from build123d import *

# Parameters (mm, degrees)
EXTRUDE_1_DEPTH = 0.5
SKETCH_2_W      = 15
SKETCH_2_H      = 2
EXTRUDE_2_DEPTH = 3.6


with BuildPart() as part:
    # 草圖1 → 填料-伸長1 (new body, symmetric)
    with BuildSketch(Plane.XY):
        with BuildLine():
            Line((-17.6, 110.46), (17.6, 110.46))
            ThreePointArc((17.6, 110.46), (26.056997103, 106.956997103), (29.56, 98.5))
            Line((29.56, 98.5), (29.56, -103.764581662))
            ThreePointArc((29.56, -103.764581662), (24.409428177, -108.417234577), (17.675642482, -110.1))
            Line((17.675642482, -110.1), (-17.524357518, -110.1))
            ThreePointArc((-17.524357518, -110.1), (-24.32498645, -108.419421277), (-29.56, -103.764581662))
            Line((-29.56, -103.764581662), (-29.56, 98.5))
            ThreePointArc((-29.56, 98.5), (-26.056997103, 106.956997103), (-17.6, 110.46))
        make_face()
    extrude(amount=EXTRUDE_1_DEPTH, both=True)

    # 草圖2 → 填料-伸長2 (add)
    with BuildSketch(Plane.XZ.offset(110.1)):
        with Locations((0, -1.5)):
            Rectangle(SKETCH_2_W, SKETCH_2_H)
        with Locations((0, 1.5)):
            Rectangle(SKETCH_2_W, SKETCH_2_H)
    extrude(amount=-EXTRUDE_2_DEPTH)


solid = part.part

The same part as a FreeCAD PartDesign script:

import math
import FreeCAD as App
import Part
import Sketcher
from FreeCAD import Vector
Q = App.Units.Quantity

doc = App.newDocument("Part")
body = doc.addObject("PartDesign::Body", "Body")

# Sketch on XY plane
sketch1 = doc.addObject("Sketcher::SketchObject", "Sketch")
body.addObject(sketch1)
sketch1.AttachmentSupport = (doc.XY_Plane, [""])
sketch1.MapMode = "FlatFace"
sketch1.addGeometry(Part.LineSegment(Vector(18, 110, 0), Vector(-18, 110, 0)), False)
sketch1.addGeometry(Part.ArcOfCircle(Part.Circle(Vector(-18, 98, 0), Vector(0, 0, 1), 12), math.radians(90), math.radians(180)), False)
sketch1.addGeometry(Part.LineSegment(Vector(-30, 98, 0), Vector(-30, -104, 0)), False)
sketch1.addGeometry(Part.ArcOfCircle(Part.Circle(Vector(-18, -96, 0), Vector(0, 0, 1), 15), math.radians(-146), math.radians(-90)), False)
sketch1.addGeometry(Part.LineSegment(Vector(-18, -110, 0), Vector(18, -110, 0)), False)
sketch1.addGeometry(Part.ArcOfCircle(Part.Circle(Vector(18, -96, 0), Vector(0, 0, 1), 14), math.radians(-90), math.radians(-34)), False)
sketch1.addGeometry(Part.LineSegment(Vector(30, -104, 0), Vector(30, 98, 0)), False)
sketch1.addGeometry(Part.ArcOfCircle(Part.Circle(Vector(18, 98, 0), Vector(0, 0, 1), 12), math.radians(0), math.radians(90)), False)
sketch1.addConstraint(Sketcher.Constraint("Tangent", 0, 2, 1, 1))
sketch1.addConstraint(Sketcher.Constraint("Tangent", 1, 2, 2, 1))
sketch1.addConstraint(Sketcher.Constraint("Coincident", 2, 2, 3, 1))
sketch1.addConstraint(Sketcher.Constraint("Tangent", 3, 2, 4, 1))
sketch1.addConstraint(Sketcher.Constraint("Tangent", 4, 2, 5, 1))
sketch1.addConstraint(Sketcher.Constraint("Coincident", 5, 2, 6, 1))
sketch1.addConstraint(Sketcher.Constraint("Tangent", 6, 2, 7, 1))
sketch1.addConstraint(Sketcher.Constraint("Tangent", 7, 2, 0, 1))
sketch1.addConstraint(Sketcher.Constraint("Horizontal", 0))
sketch1.addConstraint(Sketcher.Constraint("Vertical", 2))
sketch1.addConstraint(Sketcher.Constraint("Horizontal", 4))
sketch1.addConstraint(Sketcher.Constraint("Vertical", 6))
sketch1.addConstraint(Sketcher.Constraint("Equal", 1, 7))
sketch1.addConstraint(Sketcher.Constraint("Symmetric", 2, 2, 5, 2, -2))
sketch1.addConstraint(Sketcher.Constraint("Equal", 0, 4))
sketch1.addConstraint(Sketcher.Constraint("Radius", 3, Q("14.6 mm")))
sketch1.addConstraint(Sketcher.Constraint("Radius", 1, Q("11.96 mm")))
sketch1.addConstraint(Sketcher.Constraint("DistanceX", 0, 2, 0, 1, Q("35.2 mm")))
sketch1.addConstraint(Sketcher.Constraint("DistanceY", 3, 3, 1, 3, Q("194 mm")))
sketch1.addConstraint(Sketcher.Constraint("DistanceY", -1, 1, 1, 3, Q("98.5 mm")))
sketch1.addConstraint(Sketcher.Constraint("Radius", 5, Q("14.314404 mm")))
pad1 = doc.addObject("PartDesign::Pad", "Pad")
body.addObject(pad1)
pad1.Profile = sketch1
pad1.Length = 1
pad1.Midplane = True

# Sketch on XZ plane
sketch2 = doc.addObject("Sketcher::SketchObject", "Sketch001")
body.addObject(sketch2)
sketch2.AttachmentSupport = (doc.XZ_Plane, [""])
sketch2.MapMode = "FlatFace"
sketch2.AttachmentOffset = App.Placement(Vector(0, 0, 110.1), App.Rotation())
sketch2.addGeometry(Part.LineSegment(Vector(-7.5, -0.5, 0), Vector(-7.5, -2.5, 0)), False)
sketch2.addGeometry(Part.LineSegment(Vector(-7.5, -2.5, 0), Vector(7.5, -2.5, 0)), False)
sketch2.addGeometry(Part.LineSegment(Vector(7.5, -2.5, 0), Vector(7.5, -0.5, 0)), False)
sketch2.addGeometry(Part.LineSegment(Vector(7.5, -0.5, 0), Vector(-7.5, -0.5, 0)), False)
sketch2.addGeometry(Part.LineSegment(Vector(-7.5, 2.5, 0), Vector(-7.5, 0.5, 0)), False)
sketch2.addGeometry(Part.LineSegment(Vector(-7.5, 0.5, 0), Vector(7.5, 0.5, 0)), False)
sketch2.addGeometry(Part.LineSegment(Vector(7.5, 0.5, 0), Vector(7.5, 2.5, 0)), False)
sketch2.addGeometry(Part.LineSegment(Vector(7.5, 2.5, 0), Vector(-7.5, 2.5, 0)), False)
sketch2.addConstraint(Sketcher.Constraint("Coincident", 0, 2, 1, 1))
sketch2.addConstraint(Sketcher.Constraint("Coincident", 1, 2, 2, 1))
sketch2.addConstraint(Sketcher.Constraint("Coincident", 2, 2, 3, 1))
sketch2.addConstraint(Sketcher.Constraint("Coincident", 3, 2, 0, 1))
sketch2.addConstraint(Sketcher.Constraint("Coincident", 4, 2, 5, 1))
sketch2.addConstraint(Sketcher.Constraint("Coincident", 5, 2, 6, 1))
sketch2.addConstraint(Sketcher.Constraint("Coincident", 6, 2, 7, 1))
sketch2.addConstraint(Sketcher.Constraint("Coincident", 7, 2, 4, 1))
sketch2.addConstraint(Sketcher.Constraint("Vertical", 0))
sketch2.addConstraint(Sketcher.Constraint("Horizontal", 1))
sketch2.addConstraint(Sketcher.Constraint("Vertical", 2))
sketch2.addConstraint(Sketcher.Constraint("Horizontal", 3))
sketch2.addConstraint(Sketcher.Constraint("Vertical", 4))
sketch2.addConstraint(Sketcher.Constraint("Horizontal", 5))
sketch2.addConstraint(Sketcher.Constraint("Vertical", 6))
sketch2.addConstraint(Sketcher.Constraint("Horizontal", 7))
sketch2.addConstraint(Sketcher.Constraint("Symmetric", 2, 2, 4, 2, -1, 1))
sketch2.addConstraint(Sketcher.Constraint("Symmetric", 0, 2, 6, 2, -1, 1))
sketch2.addConstraint(Sketcher.Constraint("Vertical", 3, 2, 4, 2))
sketch2.addConstraint(Sketcher.Constraint("DistanceX", 1, 1, 1, 2, Q("15 mm")))
sketch2.addConstraint(Sketcher.Constraint("DistanceY", 0, 2, 0, 1, Q("2 mm")))
sketch2.addConstraint(Sketcher.Constraint("DistanceY", 3, 2, 4, 2, Q("1 mm")))
pad2 = doc.addObject("PartDesign::Pad", "Pad001")
body.addObject(pad2)
pad2.Profile = sketch2
pad2.Length = 3.6
pad2.Reversed = True

doc.recompute()
